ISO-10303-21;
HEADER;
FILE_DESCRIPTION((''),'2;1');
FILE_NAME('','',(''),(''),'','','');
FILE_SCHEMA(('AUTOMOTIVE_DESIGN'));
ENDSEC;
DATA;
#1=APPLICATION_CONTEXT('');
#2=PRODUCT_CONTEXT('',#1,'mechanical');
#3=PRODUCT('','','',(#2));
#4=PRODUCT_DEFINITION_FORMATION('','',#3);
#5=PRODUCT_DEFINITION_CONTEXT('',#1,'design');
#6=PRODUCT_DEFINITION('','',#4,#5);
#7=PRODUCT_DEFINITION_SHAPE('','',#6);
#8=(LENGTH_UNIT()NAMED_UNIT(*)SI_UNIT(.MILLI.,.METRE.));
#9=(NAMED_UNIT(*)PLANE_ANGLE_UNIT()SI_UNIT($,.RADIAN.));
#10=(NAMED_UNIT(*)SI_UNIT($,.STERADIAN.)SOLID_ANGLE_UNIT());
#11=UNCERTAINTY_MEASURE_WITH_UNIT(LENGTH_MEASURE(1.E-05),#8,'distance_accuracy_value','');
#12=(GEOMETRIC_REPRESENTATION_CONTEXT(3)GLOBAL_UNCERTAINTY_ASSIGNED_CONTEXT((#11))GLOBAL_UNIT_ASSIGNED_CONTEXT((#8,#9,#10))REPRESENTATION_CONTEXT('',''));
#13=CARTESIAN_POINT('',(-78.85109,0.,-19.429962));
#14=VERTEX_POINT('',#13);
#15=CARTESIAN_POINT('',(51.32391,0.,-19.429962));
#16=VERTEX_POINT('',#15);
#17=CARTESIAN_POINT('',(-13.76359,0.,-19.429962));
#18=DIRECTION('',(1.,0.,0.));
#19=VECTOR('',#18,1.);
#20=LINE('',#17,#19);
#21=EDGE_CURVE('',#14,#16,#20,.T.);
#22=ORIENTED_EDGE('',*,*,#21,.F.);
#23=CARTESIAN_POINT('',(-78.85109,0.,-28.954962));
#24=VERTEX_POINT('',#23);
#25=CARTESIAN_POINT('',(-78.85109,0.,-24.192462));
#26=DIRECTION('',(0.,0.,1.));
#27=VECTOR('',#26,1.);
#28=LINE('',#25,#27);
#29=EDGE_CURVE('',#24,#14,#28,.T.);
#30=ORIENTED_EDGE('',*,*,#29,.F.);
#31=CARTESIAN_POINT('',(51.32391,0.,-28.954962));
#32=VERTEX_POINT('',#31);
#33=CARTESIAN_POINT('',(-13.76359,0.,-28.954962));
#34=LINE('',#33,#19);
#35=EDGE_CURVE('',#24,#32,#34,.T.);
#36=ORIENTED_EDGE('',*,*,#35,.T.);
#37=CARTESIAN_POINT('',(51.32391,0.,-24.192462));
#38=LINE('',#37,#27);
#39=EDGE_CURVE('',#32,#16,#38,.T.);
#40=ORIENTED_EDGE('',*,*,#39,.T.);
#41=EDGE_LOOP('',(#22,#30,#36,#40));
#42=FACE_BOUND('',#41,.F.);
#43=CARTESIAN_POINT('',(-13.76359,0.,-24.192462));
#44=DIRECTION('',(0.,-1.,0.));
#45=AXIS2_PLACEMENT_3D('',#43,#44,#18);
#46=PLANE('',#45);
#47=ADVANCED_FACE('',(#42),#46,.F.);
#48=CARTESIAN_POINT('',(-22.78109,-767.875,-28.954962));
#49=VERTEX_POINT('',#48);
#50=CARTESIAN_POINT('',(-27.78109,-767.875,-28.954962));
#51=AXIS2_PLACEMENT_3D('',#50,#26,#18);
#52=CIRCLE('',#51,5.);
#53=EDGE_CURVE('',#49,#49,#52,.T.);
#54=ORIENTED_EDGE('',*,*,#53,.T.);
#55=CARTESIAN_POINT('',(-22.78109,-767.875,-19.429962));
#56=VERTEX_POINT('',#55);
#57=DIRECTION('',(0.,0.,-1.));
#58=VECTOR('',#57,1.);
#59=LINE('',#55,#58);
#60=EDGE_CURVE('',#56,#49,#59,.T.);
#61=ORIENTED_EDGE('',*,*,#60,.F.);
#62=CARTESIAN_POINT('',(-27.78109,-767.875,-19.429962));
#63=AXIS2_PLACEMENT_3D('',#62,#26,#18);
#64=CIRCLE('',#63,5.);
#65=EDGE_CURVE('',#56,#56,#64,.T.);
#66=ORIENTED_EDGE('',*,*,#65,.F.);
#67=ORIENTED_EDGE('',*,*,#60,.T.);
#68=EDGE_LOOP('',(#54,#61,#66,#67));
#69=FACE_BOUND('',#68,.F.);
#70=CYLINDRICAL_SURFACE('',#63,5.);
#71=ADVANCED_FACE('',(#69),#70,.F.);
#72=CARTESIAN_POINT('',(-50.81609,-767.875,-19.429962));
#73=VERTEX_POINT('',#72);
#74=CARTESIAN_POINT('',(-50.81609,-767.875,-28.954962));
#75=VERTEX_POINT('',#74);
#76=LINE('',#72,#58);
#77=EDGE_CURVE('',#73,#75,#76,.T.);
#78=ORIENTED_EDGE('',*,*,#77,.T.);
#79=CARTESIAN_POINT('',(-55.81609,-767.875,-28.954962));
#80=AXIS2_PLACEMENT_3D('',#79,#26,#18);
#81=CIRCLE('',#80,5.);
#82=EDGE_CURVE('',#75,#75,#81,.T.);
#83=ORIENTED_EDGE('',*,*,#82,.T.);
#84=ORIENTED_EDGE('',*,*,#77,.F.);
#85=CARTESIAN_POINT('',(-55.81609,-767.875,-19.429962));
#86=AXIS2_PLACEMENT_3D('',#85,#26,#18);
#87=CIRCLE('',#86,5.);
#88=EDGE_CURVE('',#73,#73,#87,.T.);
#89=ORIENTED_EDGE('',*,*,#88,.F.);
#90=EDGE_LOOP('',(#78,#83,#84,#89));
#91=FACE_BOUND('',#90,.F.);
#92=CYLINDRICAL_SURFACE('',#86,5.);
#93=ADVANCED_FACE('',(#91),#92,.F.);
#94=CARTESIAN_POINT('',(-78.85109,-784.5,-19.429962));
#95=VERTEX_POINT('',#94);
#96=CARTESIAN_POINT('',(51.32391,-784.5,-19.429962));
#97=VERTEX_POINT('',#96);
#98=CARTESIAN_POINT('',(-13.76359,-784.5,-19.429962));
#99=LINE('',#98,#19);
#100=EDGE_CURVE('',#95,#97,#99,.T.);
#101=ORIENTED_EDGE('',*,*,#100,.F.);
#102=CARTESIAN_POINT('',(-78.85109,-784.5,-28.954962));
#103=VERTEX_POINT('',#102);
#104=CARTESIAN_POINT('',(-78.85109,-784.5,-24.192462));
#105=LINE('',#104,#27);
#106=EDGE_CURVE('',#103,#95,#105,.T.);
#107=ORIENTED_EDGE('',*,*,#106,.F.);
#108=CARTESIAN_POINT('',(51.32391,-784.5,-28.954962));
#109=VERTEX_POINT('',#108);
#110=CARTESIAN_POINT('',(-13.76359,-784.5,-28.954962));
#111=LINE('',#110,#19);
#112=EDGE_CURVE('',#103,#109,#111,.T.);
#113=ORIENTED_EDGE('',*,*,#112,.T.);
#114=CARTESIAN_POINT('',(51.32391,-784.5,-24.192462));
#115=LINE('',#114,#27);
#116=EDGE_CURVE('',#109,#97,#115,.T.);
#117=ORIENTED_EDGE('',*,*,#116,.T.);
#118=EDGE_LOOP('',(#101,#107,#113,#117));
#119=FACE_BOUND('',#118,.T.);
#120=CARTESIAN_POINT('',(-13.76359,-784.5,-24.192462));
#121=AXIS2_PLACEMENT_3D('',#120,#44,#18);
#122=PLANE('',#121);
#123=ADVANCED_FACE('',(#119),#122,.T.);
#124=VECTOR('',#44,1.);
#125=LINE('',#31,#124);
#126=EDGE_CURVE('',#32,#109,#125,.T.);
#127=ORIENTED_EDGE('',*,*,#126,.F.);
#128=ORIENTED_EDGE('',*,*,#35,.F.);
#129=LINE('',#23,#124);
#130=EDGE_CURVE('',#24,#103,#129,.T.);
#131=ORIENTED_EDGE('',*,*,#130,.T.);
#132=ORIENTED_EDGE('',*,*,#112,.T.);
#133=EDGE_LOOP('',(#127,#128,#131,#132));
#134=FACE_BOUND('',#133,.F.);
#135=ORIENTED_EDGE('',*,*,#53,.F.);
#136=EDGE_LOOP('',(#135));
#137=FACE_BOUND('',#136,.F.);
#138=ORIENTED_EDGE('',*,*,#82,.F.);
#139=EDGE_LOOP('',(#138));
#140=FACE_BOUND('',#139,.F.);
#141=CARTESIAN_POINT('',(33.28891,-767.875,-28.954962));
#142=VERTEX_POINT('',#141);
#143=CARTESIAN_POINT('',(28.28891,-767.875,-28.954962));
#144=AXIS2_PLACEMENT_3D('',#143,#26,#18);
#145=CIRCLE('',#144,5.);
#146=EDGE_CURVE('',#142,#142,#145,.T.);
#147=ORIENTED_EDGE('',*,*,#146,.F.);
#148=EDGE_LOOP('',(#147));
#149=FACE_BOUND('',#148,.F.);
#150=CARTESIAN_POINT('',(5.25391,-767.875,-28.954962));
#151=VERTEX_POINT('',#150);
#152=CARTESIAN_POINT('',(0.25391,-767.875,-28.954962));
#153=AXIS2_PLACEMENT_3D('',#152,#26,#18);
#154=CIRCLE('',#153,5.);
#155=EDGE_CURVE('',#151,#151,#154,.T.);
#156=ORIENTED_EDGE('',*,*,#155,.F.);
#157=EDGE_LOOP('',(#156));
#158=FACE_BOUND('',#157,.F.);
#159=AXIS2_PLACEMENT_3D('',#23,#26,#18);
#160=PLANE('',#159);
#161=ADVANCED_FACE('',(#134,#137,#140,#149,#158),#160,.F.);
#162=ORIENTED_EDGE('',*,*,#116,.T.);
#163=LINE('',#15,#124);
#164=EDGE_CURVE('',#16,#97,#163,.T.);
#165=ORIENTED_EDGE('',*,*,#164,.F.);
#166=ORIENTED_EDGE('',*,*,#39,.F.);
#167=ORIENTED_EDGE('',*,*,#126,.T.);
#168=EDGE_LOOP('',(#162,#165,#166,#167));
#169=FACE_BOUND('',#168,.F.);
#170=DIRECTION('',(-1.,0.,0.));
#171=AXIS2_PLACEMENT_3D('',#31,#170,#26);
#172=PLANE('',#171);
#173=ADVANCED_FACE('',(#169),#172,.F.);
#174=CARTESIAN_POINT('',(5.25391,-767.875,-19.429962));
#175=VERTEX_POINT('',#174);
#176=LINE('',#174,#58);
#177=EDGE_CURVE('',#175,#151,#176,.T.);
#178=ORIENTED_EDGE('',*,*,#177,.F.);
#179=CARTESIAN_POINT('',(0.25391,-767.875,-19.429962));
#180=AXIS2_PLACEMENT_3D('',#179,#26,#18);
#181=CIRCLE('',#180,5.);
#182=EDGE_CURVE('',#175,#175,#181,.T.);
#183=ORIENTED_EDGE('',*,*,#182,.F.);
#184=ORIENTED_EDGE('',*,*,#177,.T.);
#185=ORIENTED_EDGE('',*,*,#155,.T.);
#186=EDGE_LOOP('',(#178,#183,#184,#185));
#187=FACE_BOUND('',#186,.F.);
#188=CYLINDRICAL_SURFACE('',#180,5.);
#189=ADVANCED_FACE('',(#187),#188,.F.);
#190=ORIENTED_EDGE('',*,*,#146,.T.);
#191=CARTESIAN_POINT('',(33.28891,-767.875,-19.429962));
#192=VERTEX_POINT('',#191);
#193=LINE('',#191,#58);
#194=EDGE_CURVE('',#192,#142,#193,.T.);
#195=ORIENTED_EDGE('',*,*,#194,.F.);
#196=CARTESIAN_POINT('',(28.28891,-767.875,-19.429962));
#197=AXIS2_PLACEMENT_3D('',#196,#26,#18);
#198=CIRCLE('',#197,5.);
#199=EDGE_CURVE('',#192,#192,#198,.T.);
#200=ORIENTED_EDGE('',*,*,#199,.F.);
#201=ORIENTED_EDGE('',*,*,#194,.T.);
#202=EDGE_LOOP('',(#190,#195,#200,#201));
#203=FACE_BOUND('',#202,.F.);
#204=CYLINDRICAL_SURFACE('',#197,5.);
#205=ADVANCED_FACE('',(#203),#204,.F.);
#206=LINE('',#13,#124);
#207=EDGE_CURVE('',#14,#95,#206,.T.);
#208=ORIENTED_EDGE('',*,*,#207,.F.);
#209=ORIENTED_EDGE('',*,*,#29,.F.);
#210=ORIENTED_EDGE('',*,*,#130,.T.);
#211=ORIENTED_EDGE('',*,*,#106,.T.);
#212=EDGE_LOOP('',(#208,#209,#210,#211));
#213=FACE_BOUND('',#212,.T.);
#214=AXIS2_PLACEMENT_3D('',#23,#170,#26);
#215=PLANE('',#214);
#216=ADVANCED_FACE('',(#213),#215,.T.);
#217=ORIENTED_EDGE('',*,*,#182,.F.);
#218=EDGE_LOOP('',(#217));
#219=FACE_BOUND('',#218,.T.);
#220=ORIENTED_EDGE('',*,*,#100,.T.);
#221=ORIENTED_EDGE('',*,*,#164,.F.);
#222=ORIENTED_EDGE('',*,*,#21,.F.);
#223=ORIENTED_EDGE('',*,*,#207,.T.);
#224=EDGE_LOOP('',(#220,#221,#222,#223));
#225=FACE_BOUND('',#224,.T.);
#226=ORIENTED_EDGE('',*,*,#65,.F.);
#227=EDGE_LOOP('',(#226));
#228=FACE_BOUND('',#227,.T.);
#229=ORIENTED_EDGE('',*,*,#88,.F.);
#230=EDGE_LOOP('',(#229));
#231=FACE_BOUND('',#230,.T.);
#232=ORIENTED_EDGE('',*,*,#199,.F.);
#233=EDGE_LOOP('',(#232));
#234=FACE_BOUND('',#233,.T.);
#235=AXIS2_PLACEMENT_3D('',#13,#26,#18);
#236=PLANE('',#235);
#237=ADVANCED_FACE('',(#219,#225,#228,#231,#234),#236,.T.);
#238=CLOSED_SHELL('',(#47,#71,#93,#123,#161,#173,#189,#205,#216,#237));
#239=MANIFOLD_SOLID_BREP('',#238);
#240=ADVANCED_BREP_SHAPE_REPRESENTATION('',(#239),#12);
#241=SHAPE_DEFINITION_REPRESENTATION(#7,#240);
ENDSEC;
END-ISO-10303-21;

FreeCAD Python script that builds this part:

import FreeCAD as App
import Part
import Sketcher

V = App.Vector

doc = App.newDocument("Part")
body = doc.addObject("PartDesign::Body", "Body")

# Sketch on XZ plane
sketch1 = body.newObject("Sketcher::SketchObject", "Sketch")
sketch1.AttachmentSupport = (doc.getObject("XZ_Plane"), [""])
sketch1.MapMode = "FlatFace"
sketch1.addGeometry([
    Part.LineSegment(V(-79, -19, 0), V(-79, -29, 0)),
    Part.LineSegment(V(-79, -29, 0), V(51, -29, 0)),
    Part.LineSegment(V(51, -29, 0), V(51, -19, 0)),
    Part.LineSegment(V(51, -19, 0), V(-79, -19, 0)),
], False)
sketch1.addConstraint([
    Sketcher.Constraint("Coincident", 0, 2, 1, 1),
    Sketcher.Constraint("Coincident", 1, 2, 2, 1),
    Sketcher.Constraint("Coincident", 2, 2, 3, 1),
    Sketcher.Constraint("Coincident", 3, 2, 0, 1),
    Sketcher.Constraint("Vertical", 0),
    Sketcher.Constraint("Horizontal", 1),
    Sketcher.Constraint("Vertical", 2),
    Sketcher.Constraint("Horizontal", 3),
    Sketcher.Constraint("DistanceX", 1, 1, 1, 2, 130.175),
    Sketcher.Constraint("DistanceY", 0, 2, 0, 1, 9.525),
    Sketcher.Constraint("DistanceX", 0, 2, -1, 1, 78.85109),
    Sketcher.Constraint("DistanceY", 0, 2, -1, 1, 28.954962),
])
pad1 = body.newObject("PartDesign::Pad", "Pad")
pad1.Profile = sketch1
pad1.Length = 784.5

# Sketch on XY plane
sketch2 = body.newObject("Sketcher::SketchObject", "Sketch001")
sketch2.AttachmentSupport = (doc.getObject("XY_Plane"), [""])
sketch2.MapMode = "FlatFace"
sketch2.AttachmentOffset = App.Placement(V(0, 0, -19.429962), App.Rotation())
sketch2.addGeometry([
    Part.Circle(V(-56, -768, 0), V(0, 0, 1), 5),
    Part.Circle(V(-28, -768, 0), V(0, 0, 1), 5),
    Part.Circle(V(0, -768, 0), V(0, 0, 1), 5),
    Part.Circle(V(28, -768, 0), V(0, 0, 1), 5),
], False)
sketch2.addConstraint([
    Sketcher.Constraint("Equal", 0, 1),
    Sketcher.Constraint("Equal", 1, 2),
    Sketcher.Constraint("Equal", 2, 3),
    Sketcher.Constraint("Horizontal", 0, 3, 1, 3),
    Sketcher.Constraint("Horizontal", 1, 3, 2, 3),
    Sketcher.Constraint("Horizontal", 2, 3, 3, 3),
    Sketcher.Constraint("Diameter", 0, 10.0),
    Sketcher.Constraint("DistanceX", 0, 3, 2, 3, 56.07),
    Sketcher.Constraint("DistanceX", 1, 3, 3, 3, 56.07),
    Sketcher.Constraint("DistanceY", 0, 3, -1, 1, 767.875),
    Sketcher.Constraint("DistanceX", 0, 3, 1, 3, 28.035),
    Sketcher.Constraint("DistanceX", 0, 3, -1, 1, 55.81609),
])
pocket1 = body.newObject("PartDesign::Pocket", "Pocket")
pocket1.Profile = sketch2
pocket1.Length = 25

doc.recompute()
